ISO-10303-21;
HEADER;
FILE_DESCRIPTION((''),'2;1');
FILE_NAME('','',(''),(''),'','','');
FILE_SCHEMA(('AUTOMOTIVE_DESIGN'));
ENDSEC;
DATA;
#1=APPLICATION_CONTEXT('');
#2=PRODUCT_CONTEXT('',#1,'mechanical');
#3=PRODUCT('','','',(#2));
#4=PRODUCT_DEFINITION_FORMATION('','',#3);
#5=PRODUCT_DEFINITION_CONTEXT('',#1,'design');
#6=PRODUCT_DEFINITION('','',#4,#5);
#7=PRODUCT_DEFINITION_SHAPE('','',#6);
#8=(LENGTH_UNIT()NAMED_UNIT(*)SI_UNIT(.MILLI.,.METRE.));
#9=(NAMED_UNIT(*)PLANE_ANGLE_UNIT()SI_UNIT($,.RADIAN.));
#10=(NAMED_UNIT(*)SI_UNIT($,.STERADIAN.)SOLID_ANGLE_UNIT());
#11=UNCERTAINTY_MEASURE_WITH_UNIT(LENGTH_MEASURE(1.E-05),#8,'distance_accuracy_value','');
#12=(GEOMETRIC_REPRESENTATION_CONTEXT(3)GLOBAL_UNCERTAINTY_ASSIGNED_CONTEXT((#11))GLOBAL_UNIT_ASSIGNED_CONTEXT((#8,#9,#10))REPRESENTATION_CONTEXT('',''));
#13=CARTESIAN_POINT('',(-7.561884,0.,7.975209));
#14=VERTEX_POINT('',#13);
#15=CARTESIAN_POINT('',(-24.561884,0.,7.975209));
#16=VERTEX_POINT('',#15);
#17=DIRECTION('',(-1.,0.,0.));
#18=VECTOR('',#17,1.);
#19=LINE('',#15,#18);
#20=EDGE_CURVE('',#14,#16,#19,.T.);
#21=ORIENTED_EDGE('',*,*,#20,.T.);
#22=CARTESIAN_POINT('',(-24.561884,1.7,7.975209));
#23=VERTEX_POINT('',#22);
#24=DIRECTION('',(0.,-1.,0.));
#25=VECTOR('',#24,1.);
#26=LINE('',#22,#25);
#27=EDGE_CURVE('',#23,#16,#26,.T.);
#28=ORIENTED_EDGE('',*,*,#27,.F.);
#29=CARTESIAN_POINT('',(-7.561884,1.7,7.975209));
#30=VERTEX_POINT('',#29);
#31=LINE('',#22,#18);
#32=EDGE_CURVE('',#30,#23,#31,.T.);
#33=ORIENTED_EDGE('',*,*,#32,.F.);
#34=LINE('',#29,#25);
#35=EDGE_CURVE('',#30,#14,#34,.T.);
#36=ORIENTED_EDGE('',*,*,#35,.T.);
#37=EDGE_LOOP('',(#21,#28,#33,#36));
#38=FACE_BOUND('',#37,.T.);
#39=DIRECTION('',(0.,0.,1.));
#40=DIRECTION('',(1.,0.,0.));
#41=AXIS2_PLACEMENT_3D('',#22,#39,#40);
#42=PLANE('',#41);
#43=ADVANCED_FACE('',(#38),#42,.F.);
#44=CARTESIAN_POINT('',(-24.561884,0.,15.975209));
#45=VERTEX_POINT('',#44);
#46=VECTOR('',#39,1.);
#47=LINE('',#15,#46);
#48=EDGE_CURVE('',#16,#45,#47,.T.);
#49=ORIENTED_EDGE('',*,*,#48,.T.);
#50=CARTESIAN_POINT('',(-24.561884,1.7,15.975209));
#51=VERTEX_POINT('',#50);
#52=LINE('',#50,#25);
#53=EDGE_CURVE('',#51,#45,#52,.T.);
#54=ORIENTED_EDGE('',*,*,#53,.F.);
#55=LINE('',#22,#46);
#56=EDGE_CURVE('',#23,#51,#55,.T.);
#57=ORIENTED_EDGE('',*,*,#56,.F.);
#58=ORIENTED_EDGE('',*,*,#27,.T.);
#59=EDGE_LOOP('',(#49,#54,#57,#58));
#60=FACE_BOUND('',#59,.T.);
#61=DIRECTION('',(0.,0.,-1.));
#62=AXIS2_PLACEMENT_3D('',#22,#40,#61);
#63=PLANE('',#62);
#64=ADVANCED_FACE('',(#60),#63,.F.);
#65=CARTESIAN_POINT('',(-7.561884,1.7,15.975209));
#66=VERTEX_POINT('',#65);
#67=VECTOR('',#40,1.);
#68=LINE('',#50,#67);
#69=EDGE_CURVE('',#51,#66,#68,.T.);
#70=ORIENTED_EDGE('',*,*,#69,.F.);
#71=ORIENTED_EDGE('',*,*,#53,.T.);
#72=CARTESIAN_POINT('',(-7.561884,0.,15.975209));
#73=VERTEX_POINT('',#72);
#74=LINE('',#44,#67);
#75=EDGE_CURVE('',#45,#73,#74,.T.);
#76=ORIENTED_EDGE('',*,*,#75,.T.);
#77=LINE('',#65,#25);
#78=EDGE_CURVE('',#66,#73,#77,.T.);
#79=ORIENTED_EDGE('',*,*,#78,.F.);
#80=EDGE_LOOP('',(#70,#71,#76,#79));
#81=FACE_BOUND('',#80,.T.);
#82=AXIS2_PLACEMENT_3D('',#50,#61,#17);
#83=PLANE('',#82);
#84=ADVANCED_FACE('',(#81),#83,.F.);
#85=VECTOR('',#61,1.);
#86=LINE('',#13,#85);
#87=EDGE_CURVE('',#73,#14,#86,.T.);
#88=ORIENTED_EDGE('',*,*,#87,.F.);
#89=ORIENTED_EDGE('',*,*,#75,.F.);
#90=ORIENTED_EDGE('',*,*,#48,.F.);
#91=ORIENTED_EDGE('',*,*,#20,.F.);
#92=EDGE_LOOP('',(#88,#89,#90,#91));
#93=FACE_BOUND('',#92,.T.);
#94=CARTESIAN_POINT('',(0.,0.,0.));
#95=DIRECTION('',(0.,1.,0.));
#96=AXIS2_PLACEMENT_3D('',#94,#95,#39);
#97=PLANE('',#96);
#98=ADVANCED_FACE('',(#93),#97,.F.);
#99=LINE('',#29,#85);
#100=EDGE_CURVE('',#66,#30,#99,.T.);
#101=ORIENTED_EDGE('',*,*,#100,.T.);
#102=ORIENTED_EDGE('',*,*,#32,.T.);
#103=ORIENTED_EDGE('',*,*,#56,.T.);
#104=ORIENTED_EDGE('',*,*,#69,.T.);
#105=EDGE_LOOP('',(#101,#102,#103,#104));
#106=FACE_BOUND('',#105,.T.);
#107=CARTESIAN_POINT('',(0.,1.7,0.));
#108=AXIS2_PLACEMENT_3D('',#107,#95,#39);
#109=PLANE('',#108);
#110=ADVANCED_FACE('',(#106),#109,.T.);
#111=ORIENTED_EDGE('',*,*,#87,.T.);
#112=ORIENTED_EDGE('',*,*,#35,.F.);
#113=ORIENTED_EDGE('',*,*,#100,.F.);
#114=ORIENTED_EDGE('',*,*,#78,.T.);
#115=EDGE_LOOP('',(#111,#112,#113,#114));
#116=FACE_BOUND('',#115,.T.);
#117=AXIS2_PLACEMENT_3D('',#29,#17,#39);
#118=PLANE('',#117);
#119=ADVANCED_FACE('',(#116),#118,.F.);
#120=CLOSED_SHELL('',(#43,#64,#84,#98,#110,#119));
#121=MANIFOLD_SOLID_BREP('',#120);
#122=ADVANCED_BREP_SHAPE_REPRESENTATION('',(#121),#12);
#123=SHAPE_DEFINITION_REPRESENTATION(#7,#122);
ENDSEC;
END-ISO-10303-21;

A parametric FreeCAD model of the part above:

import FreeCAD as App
import Part
import Sketcher

V = App.Vector
Q = App.Units.Quantity


def add_polygon(sketch, points):
    """Adds a closed chain of lines whose ends are joined by coincident constraints."""
    first, n = sketch.GeometryCount, len(points)
    for a, b in zip(points, points[1:] + points[:1]):
        sketch.addGeometry(Part.LineSegment(App.Vector(*a, 0), App.Vector(*b, 0)), False)
    for i in range(n):
        sketch.addConstraint(Sketcher.Constraint("Coincident", first + i, 2, first + (i + 1) % n, 1))

doc = App.newDocument("Part")
body = doc.addObject("PartDesign::Body", "Body")

sketch1 = doc.addObject("Sketcher::SketchObject", "Sketch")
body.addObject(sketch1)
sketch1.AttachmentSupport = (doc.XZ_Plane, [""])
sketch1.MapMode = "FlatFace"
add_polygon(sketch1, [(-25, 8), (-25, 16), (-8, 16), (-8, 8)])
sketch1.addConstraint(Sketcher.Constraint("Vertical", 0))
sketch1.addConstraint(Sketcher.Constraint("Horizontal", 1))
sketch1.addConstraint(Sketcher.Constraint("Vertical", 2))
sketch1.addConstraint(Sketcher.Constraint("Horizontal", 3))
sketch1.addConstraint(Sketcher.Constraint("DistanceX", 1, 1, 1, 2, Q("17 mm")))
sketch1.addConstraint(Sketcher.Constraint("DistanceY", 0, 1, 0, 2, Q("8 mm")))
sketch1.addConstraint(Sketcher.Constraint("DistanceY", -1, 1, 0, 2, Q("15.975209 mm")))
sketch1.addConstraint(Sketcher.Constraint("DistanceX", 0, 2, -1, 1, Q("24.561884 mm")))
pad1 = doc.addObject("PartDesign::Pad", "Pad")
body.addObject(pad1)
pad1.Profile = sketch1
pad1.Length = 1.7
pad1.Reversed = True

doc.recompute()
